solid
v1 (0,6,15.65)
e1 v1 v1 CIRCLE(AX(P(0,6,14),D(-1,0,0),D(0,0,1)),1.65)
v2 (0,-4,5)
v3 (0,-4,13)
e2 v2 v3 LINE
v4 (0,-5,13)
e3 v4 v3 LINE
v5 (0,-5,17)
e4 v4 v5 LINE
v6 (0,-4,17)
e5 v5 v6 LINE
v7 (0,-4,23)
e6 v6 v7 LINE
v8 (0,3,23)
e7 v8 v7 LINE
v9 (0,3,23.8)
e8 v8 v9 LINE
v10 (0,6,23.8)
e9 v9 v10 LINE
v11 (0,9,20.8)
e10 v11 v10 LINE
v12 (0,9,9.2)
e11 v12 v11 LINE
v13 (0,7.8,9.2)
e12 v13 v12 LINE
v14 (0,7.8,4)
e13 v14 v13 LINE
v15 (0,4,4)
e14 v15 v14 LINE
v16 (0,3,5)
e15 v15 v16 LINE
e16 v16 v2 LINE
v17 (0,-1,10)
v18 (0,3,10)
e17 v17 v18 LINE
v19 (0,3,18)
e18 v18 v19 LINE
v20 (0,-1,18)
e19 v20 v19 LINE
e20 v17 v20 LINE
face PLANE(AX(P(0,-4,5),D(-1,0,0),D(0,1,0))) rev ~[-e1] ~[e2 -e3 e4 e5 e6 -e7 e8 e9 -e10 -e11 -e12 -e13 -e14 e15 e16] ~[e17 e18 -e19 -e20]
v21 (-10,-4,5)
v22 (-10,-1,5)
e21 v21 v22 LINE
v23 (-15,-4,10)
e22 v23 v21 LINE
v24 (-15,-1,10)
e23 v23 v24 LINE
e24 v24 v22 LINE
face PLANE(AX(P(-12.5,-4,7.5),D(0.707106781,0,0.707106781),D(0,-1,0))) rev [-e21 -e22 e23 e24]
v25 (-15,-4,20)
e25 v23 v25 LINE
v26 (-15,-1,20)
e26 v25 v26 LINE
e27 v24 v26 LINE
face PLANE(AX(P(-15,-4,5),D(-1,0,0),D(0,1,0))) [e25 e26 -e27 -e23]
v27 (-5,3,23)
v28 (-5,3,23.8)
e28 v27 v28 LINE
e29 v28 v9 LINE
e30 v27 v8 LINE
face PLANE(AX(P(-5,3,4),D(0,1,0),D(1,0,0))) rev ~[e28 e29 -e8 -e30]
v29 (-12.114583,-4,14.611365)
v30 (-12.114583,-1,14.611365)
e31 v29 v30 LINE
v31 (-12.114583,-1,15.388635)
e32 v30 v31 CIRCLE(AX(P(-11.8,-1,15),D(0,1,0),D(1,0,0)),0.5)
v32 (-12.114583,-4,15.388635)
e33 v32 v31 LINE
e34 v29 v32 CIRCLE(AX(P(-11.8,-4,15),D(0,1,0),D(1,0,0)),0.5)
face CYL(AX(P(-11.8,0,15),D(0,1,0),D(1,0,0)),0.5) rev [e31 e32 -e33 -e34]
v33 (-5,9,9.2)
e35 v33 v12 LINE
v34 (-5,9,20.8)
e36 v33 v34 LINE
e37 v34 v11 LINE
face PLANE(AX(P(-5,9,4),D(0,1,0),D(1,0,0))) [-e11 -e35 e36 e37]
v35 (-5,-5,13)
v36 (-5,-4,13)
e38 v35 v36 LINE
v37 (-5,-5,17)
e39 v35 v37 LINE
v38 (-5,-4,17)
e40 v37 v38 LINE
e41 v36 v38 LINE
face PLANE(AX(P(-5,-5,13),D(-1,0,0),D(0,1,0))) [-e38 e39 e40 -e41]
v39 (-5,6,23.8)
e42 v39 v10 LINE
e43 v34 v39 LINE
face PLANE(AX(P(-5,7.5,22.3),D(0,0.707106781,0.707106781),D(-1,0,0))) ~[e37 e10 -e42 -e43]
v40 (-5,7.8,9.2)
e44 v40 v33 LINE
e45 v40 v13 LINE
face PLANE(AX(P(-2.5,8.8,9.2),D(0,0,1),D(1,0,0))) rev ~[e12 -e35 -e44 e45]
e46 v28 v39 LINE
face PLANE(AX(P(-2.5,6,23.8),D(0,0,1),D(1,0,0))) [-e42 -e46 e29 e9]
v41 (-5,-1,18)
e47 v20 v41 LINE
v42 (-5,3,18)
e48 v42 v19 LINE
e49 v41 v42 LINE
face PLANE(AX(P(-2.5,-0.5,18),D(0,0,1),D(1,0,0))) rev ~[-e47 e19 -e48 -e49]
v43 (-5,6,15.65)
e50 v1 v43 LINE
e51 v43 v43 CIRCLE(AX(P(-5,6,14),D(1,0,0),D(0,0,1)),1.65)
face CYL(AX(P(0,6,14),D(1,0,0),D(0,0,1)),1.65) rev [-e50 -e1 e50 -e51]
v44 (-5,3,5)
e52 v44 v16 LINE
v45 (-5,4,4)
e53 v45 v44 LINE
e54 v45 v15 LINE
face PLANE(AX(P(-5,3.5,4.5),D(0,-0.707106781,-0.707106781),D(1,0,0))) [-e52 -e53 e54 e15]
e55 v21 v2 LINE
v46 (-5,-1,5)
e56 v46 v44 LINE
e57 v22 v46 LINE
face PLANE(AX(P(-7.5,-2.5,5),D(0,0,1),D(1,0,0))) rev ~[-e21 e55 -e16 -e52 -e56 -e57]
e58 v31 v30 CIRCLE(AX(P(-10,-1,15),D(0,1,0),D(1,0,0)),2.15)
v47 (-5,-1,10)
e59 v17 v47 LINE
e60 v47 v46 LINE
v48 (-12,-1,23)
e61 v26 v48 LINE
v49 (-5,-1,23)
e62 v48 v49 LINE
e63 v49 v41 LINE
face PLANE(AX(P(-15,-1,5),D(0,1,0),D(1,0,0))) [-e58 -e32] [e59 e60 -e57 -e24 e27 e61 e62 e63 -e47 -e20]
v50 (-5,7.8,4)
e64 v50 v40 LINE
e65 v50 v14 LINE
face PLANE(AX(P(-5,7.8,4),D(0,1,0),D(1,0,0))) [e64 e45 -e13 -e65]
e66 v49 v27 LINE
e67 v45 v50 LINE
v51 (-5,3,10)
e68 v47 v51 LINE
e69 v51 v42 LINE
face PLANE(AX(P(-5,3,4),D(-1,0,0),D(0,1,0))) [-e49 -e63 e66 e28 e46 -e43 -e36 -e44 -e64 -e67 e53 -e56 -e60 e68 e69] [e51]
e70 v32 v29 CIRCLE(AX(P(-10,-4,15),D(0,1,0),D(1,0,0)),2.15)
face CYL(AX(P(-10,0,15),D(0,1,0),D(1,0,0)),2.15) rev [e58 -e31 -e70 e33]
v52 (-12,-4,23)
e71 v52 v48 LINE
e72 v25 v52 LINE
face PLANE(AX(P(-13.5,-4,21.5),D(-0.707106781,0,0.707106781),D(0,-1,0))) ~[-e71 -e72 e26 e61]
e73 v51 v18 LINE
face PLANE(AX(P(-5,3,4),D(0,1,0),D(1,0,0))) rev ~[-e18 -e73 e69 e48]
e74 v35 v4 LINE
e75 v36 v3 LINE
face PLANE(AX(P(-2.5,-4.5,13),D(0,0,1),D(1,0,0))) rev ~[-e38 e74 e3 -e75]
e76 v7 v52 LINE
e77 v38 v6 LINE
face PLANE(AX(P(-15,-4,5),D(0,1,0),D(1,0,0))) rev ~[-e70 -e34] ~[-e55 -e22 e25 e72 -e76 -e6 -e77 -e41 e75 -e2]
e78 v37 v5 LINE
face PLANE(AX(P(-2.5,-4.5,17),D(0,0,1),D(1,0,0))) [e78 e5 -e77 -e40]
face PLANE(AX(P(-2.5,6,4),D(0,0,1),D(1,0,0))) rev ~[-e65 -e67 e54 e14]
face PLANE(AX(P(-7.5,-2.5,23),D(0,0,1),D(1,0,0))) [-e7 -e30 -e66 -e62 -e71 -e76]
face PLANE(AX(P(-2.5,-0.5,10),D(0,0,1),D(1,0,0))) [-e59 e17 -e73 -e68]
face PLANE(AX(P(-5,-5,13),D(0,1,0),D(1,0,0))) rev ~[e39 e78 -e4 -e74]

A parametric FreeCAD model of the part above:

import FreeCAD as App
import Part
import Sketcher

V = App.Vector
Q = App.Units.Quantity


def edges_at(feature, points):
    """Names of the edges that pass closest to the given points."""
    edges = feature.Shape.Edges
    near = lambda p: min(range(len(edges)), key=lambda i: edges[i].distToShape(Part.Vertex(*p))[0])
    return sorted({f"Edge{near(p) + 1}" for p in points})

doc = App.newDocument("Part")
body = doc.addObject("PartDesign::Body", "Body")

# Sketch on XY plane
sketch1 = doc.addObject("Sketcher::SketchObject", "Sketch")
body.addObject(sketch1)
sketch1.AttachmentSupport = (doc.XY_Plane, [""])
sketch1.MapMode = "FlatFace"
sketch1.AttachmentOffset = App.Placement(V(0, 0, 18), App.Rotation())
sketch1.addGeometry(Part.LineSegment(V(-5, 3, 0), V(-5, -4, 0)), False)
sketch1.addGeometry(Part.LineSegment(V(-5, -4, 0), V(0, -4, 0)), False)
sketch1.addGeometry(Part.LineSegment(V(0, -4, 0), V(0, 3, 0)), False)
sketch1.addGeometry(Part.LineSegment(V(0, 3, 0), V(-5, 3, 0)), False)
sketch1.addConstraint(Sketcher.Constraint("Coincident", 0, 2, 1, 1))
sketch1.addConstraint(Sketcher.Constraint("Coincident", 1, 2, 2, 1))
sketch1.addConstraint(Sketcher.Constraint("Coincident", 2, 2, 3, 1))
sketch1.addConstraint(Sketcher.Constraint("Coincident", 3, 2, 0, 1))
sketch1.addConstraint(Sketcher.Constraint("Vertical", 0))
sketch1.addConstraint(Sketcher.Constraint("Horizontal", 1))
sketch1.addConstraint(Sketcher.Constraint("Vertical", 2))
sketch1.addConstraint(Sketcher.Constraint("Horizontal", 3))
sketch1.addConstraint(Sketcher.Constraint("PointOnObject", 1, 2, -2))
sketch1.addConstraint(Sketcher.Constraint("DistanceX", 1, 1, 1, 2, Q("5 mm")))
sketch1.addConstraint(Sketcher.Constraint("DistanceY", 0, 2, 0, 1, Q("7 mm")))
sketch1.addConstraint(Sketcher.Constraint("DistanceY", 0, 2, -1, 1, Q("4 mm")))
pad1 = doc.addObject("PartDesign::Pad", "Pad")
body.addObject(pad1)
pad1.Profile = sketch1
pad1.Length = 5
body2 = doc.addObject("PartDesign::Body", "Body001")

# Sketch on XY plane
sketch2 = doc.addObject("Sketcher::SketchObject", "Sketch001")
body2.addObject(sketch2)
sketch2.AttachmentSupport = (doc.getObject("XY_Plane001"), [""])
sketch2.MapMode = "FlatFace"
sketch2.AttachmentOffset = App.Placement(V(0, 0, 5), App.Rotation())
sketch2.addGeometry(Part.LineSegment(V(-5, 3, 0), V(-5, -4, 0)), False)
sketch2.addGeometry(Part.LineSegment(V(-5, -4, 0), V(0, -4, 0)), False)
sketch2.addGeometry(Part.LineSegment(V(0, -4, 0), V(0, 3, 0)), False)
sketch2.addGeometry(Part.LineSegment(V(0, 3, 0), V(-5, 3, 0)), False)
sketch2.addConstraint(Sketcher.Constraint("Coincident", 0, 2, 1, 1))
sketch2.addConstraint(Sketcher.Constraint("Coincident", 1, 2, 2, 1))
sketch2.addConstraint(Sketcher.Constraint("Coincident", 2, 2, 3, 1))
sketch2.addConstraint(Sketcher.Constraint("Coincident", 3, 2, 0, 1))
sketch2.addConstraint(Sketcher.Constraint("Vertical", 0))
sketch2.addConstraint(Sketcher.Constraint("Horizontal", 1))
sketch2.addConstraint(Sketcher.Constraint("Vertical", 2))
sketch2.addConstraint(Sketcher.Constraint("Horizontal", 3))
sketch2.addConstraint(Sketcher.Constraint("PointOnObject", 1, 2, -2))
sketch2.addConstraint(Sketcher.Constraint("DistanceX", 1, 1, 1, 2, Q("5 mm")))
sketch2.addConstraint(Sketcher.Constraint("DistanceY", 0, 2, 0, 1, Q("7 mm")))
sketch2.addConstraint(Sketcher.Constraint("DistanceY", 0, 2, -1, 1, Q("4 mm")))
pad2 = doc.addObject("PartDesign::Pad", "Pad001")
body2.addObject(pad2)
pad2.Profile = sketch2
pad2.Length = 5
body3 = doc.addObject("PartDesign::Body", "Body002")

# Sketch on YZ plane
sketch3 = doc.addObject("Sketcher::SketchObject", "Sketch002")
body3.addObject(sketch3)
sketch3.AttachmentSupport = (doc.getObject("YZ_Plane002"), [""])
sketch3.MapMode = "FlatFace"
sketch3.addGeometry(Part.Circle(V(6, 15, 0), V(0, 0, 1), 1.6), False)
sketch3.addConstraint(Sketcher.Constraint("Diameter", 0, Q("3.3 mm")))
sketch3.addConstraint(Sketcher.Constraint("DistanceX", -1, 1, 0, 3, Q("6 mm")))
sketch3.addConstraint(Sketcher.Constraint("DistanceY", -1, 1, 0, 3, Q("15 mm")))
pad3 = doc.addObject("PartDesign::Pad", "Pad002")
body3.addObject(pad3)
pad3.Profile = sketch3
pad3.Length = 10
pad3.Reversed = True
body4 = doc.addObject("PartDesign::Body", "Body003")

# Sketch on XY plane
sketch4 = doc.addObject("Sketcher::SketchObject", "Sketch003")
body4.addObject(sketch4)
sketch4.AttachmentSupport = (doc.getObject("XY_Plane003"), [""])
sketch4.MapMode = "FlatFace"
sketch4.AttachmentOffset = App.Placement(V(0, 0, 5), App.Rotation())
sketch4.addGeometry(Part.LineSegment(V(-5, 9.8, 0), V(-5, 7.8, 0)), False)
sketch4.addGeometry(Part.LineSegment(V(-5, 7.8, 0), V(0, 7.8, 0)), False)
sketch4.addGeometry(Part.LineSegment(V(0, 7.8, 0), V(0, 9.8, 0)), False)
sketch4.addGeometry(Part.LineSegment(V(0, 9.8, 0), V(-5, 9.8, 0)), False)
sketch4.addConstraint(Sketcher.Constraint("Coincident", 0, 2, 1, 1))
sketch4.addConstraint(Sketcher.Constraint("Coincident", 1, 2, 2, 1))
sketch4.addConstraint(Sketcher.Constraint("Coincident", 2, 2, 3, 1))
sketch4.addConstraint(Sketcher.Constraint("Coincident", 3, 2, 0, 1))
sketch4.addConstraint(Sketcher.Constraint("Vertical", 0))
sketch4.addConstraint(Sketcher.Constraint("Horizontal", 1))
sketch4.addConstraint(Sketcher.Constraint("Vertical", 2))
sketch4.addConstraint(Sketcher.Constraint("Horizontal", 3))
sketch4.addConstraint(Sketcher.Constraint("PointOnObject", 1, 2, -2))
sketch4.addConstraint(Sketcher.Constraint("DistanceX", 1, 1, 1, 2, Q("5 mm")))
sketch4.addConstraint(Sketcher.Constraint("DistanceY", 0, 2, 0, 1, Q("2 mm")))
sketch4.addConstraint(Sketcher.Constraint("DistanceY", -1, 1, 0, 2, Q("7.8 mm")))
pad4 = doc.addObject("PartDesign::Pad", "Pad003")
body4.addObject(pad4)
pad4.Profile = sketch4
pad4.Length = 5.2
body5 = doc.addObject("PartDesign::Body", "Body004")

# Sketch on XY plane
sketch5 = doc.addObject("Sketcher::SketchObject", "Sketch004")
body5.addObject(sketch5)
sketch5.AttachmentSupport = (doc.getObject("XY_Plane004"), [""])
sketch5.MapMode = "FlatFace"
sketch5.AttachmentOffset = App.Placement(V(0, 0, 5), App.Rotation())
sketch5.addGeometry(Part.LineSegment(V(-5, 9, 0), V(-5, 3, 0)), False)
sketch5.addGeometry(Part.LineSegment(V(-5, 3, 0), V(0, 3, 0)), False)
sketch5.addGeometry(Part.LineSegment(V(0, 3, 0), V(0, 9, 0)), False)
sketch5.addGeometry(Part.LineSegment(V(0, 9, 0), V(-5, 9, 0)), False)
sketch5.addConstraint(Sketcher.Constraint("Coincident", 0, 2, 1, 1))
sketch5.addConstraint(Sketcher.Constraint("Coincident", 1, 2, 2, 1))
sketch5.addConstraint(Sketcher.Constraint("Coincident", 2, 2, 3, 1))
sketch5.addConstraint(Sketcher.Constraint("Coincident", 3, 2, 0, 1))
sketch5.addConstraint(Sketcher.Constraint("Vertical", 0))
sketch5.addConstraint(Sketcher.Constraint("Horizontal", 1))
sketch5.addConstraint(Sketcher.Constraint("Vertical", 2))
sketch5.addConstraint(Sketcher.Constraint("Horizontal", 3))
sketch5.addConstraint(Sketcher.Constraint("PointOnObject", 1, 2, -2))
sketch5.addConstraint(Sketcher.Constraint("DistanceX", 1, 1, 1, 2, Q("5 mm")))
sketch5.addConstraint(Sketcher.Constraint("DistanceY", 0, 2, 0, 1, Q("6 mm")))
sketch5.addConstraint(Sketcher.Constraint("DistanceY", -1, 1, 0, 2, Q("3 mm")))
pad5 = doc.addObject("PartDesign::Pad", "Pad004")
body5.addObject(pad5)
pad5.Profile = sketch5
pad5.Length = 19.8
doc.recompute()

chamfer = doc.addObject("PartDesign::Chamfer", "Chamfer")
body5.addObject(chamfer)
chamfer.Base = (pad5, edges_at(pad5, [(-2.5, 9, 24.8)]))
chamfer.Size = 3
doc.recompute()

chamfer2 = doc.addObject("PartDesign::Chamfer", "Chamfer001")
body5.addObject(chamfer2)
chamfer2.Base = (chamfer, edges_at(chamfer, [(-2.5, 3, 5)]))
chamfer2.Size = 1
doc.recompute()

boolean = doc.addObject("PartDesign::Boolean", "Boolean")
body5.addObject(boolean)
boolean.Type = "Cut"
boolean.addObjects([body4])
doc.recompute()

boolean2 = doc.addObject("PartDesign::Boolean", "Boolean001")
body5.addObject(boolean2)
boolean2.Type = "Cut"
boolean2.addObjects([body3])
body6 = doc.addObject("PartDesign::Body", "Body005")
doc.recompute()

body5.Placement = App.Placement(V(0, 0, -1), App.Rotation(V(0, 0, 1), 0))
boolean3 = doc.addObject("PartDesign::Boolean", "Boolean002")
body6.addObject(boolean3)
boolean3.Type = "Fuse"
boolean3.addObjects([body5])
body7 = doc.addObject("PartDesign::Body", "Body006")

# Sketch on XZ plane
sketch6 = doc.addObject("Sketcher::SketchObject", "Sketch005")
body7.addObject(sketch6)
sketch6.AttachmentSupport = (doc.getObject("XZ_Plane006"), [""])
sketch6.MapMode = "FlatFace"
sketch6.addGeometry(Part.Circle(V(-10, 12, 0), V(0, 0, 1), 2.1), False)
sketch6.addConstraint(Sketcher.Constraint("Diameter", 0, Q("4.3 mm")))
sketch6.addConstraint(Sketcher.Constraint("DistanceX", 0, 3, -1, 1, Q("10 mm")))
sketch6.addConstraint(Sketcher.Constraint("DistanceY", -1, 1, 0, 3, Q("12 mm")))
pad6 = doc.addObject("PartDesign::Pad", "Pad005")
body7.addObject(pad6)
pad6.Profile = sketch6
pad6.Length = 10
body8 = doc.addObject("PartDesign::Body", "Body007")

# Sketch on XZ plane
sketch7 = doc.addObject("Sketcher::SketchObject", "Sketch006")
body8.addObject(sketch7)
sketch7.AttachmentSupport = (doc.getObject("XZ_Plane007"), [""])
sketch7.MapMode = "FlatFace"
sketch7.addGeometry(Part.Circle(V(-11.8, 12, 0), V(0, 0, 1), 0.5), False)
sketch7.addConstraint(Sketcher.Constraint("Diameter", 0, Q("1 mm")))
sketch7.addConstraint(Sketcher.Constraint("DistanceY", -1, 1, 0, 3, Q("12 mm")))
sketch7.addConstraint(Sketcher.Constraint("DistanceX", 0, 3, -1, 1, Q("11.8 mm")))
pad7 = doc.addObject("PartDesign::Pad", "Pad006")
body8.addObject(pad7)
pad7.Profile = sketch7
pad7.Length = 10
doc.recompute()

boolean4 = doc.addObject("PartDesign::Boolean", "Boolean003")
body8.addObject(boolean4)
boolean4.Type = "Fuse"
boolean4.addObjects([body7])
body9 = doc.addObject("PartDesign::Body", "Body008")
doc.recompute()

body8.Placement = App.Placement(V(0, 0, 3), App.Rotation(V(0, 0, 1), 0))
boolean5 = doc.addObject("PartDesign::Boolean", "Boolean004")
body9.addObject(boolean5)
boolean5.Type = "Fuse"
boolean5.addObjects([body8])
body10 = doc.addObject("PartDesign::Body", "Body009")

# Sketch on XY plane
sketch8 = doc.addObject("Sketcher::SketchObject", "Sketch007")
body10.addObject(sketch8)
sketch8.AttachmentSupport = (doc.getObject("XY_Plane009"), [""])
sketch8.MapMode = "FlatFace"
sketch8.AttachmentOffset = App.Placement(V(0, 0, 5), App.Rotation())
sketch8.addGeometry(Part.LineSegment(V(-15, -1, 0), V(-15, -4, 0)), False)
sketch8.addGeometry(Part.LineSegment(V(-15, -4, 0), V(0, -4, 0)), False)
sketch8.addGeometry(Part.LineSegment(V(0, -4, 0), V(0, -1, 0)), False)
sketch8.addGeometry(Part.LineSegment(V(0, -1, 0), V(-15, -1, 0)), False)
sketch8.addConstraint(Sketcher.Constraint("Coincident", 0, 2, 1, 1))
sketch8.addConstraint(Sketcher.Constraint("Coincident", 1, 2, 2, 1))
sketch8.addConstraint(Sketcher.Constraint("Coincident", 2, 2, 3, 1))
sketch8.addConstraint(Sketcher.Constraint("Coincident", 3, 2, 0, 1))
sketch8.addConstraint(Sketcher.Constraint("Vertical", 0))
sketch8.addConstraint(Sketcher.Constraint("Horizontal", 1))
sketch8.addConstraint(Sketcher.Constraint("Vertical", 2))
sketch8.addConstraint(Sketcher.Constraint("Horizontal", 3))
sketch8.addConstraint(Sketcher.Constraint("PointOnObject", 1, 2, -2))
sketch8.addConstraint(Sketcher.Constraint("DistanceX", 1, 1, 1, 2, Q("15 mm")))
sketch8.addConstraint(Sketcher.Constraint("DistanceY", 0, 2, 0, 1, Q("3 mm")))
sketch8.addConstraint(Sketcher.Constraint("DistanceY", 0, 2, -1, 1, Q("4 mm")))
pad8 = doc.addObject("PartDesign::Pad", "Pad007")
body10.addObject(pad8)
pad8.Profile = sketch8
pad8.Length = 18
doc.recompute()

boolean6 = doc.addObject("PartDesign::Boolean", "Boolean005")
body10.addObject(boolean6)
boolean6.Type = "Cut"
boolean6.addObjects([body9])
doc.recompute()

chamfer3 = doc.addObject("PartDesign::Chamfer", "Chamfer002")
body10.addObject(chamfer3)
chamfer3.Base = (boolean6, edges_at(boolean6, [(-15, -2.5, 23)]))
chamfer3.Size = 3
doc.recompute()

chamfer4 = doc.addObject("PartDesign::Chamfer", "Chamfer003")
body10.addObject(chamfer4)
chamfer4.Base = (chamfer3, edges_at(chamfer3, [(-15, -2.5, 5)]))
chamfer4.Size = 5
body11 = doc.addObject("PartDesign::Body", "Body010")
body11.AllowCompound = True

# Sketch on XY plane
sketch9 = doc.addObject("Sketcher::SketchObject", "Sketch008")
body11.addObject(sketch9)
sketch9.AttachmentSupport = (doc.getObject("XY_Plane010"), [""])
sketch9.MapMode = "FlatFace"
sketch9.AttachmentOffset = App.Placement(V(0, 0, 13), App.Rotation())
sketch9.addGeometry(Part.LineSegment(V(-5, -4, 0), V(-5, -5, 0)), False)
sketch9.addGeometry(Part.LineSegment(V(-5, -5, 0), V(0, -5, 0)), False)
sketch9.addGeometry(Part.LineSegment(V(0, -5, 0), V(0, -4, 0)), False)
sketch9.addGeometry(Part.LineSegment(V(0, -4, 0), V(-5, -4, 0)), False)
sketch9.addConstraint(Sketcher.Constraint("Coincident", 0, 2, 1, 1))
sketch9.addConstraint(Sketcher.Constraint("Coincident", 1, 2, 2, 1))
sketch9.addConstraint(Sketcher.Constraint("Coincident", 2, 2, 3, 1))
sketch9.addConstraint(Sketcher.Constraint("Coincident", 3, 2, 0, 1))
sketch9.addConstraint(Sketcher.Constraint("Vertical", 0))
sketch9.addConstraint(Sketcher.Constraint("Horizontal", 1))
sketch9.addConstraint(Sketcher.Constraint("Vertical", 2))
sketch9.addConstraint(Sketcher.Constraint("Horizontal", 3))
sketch9.addConstraint(Sketcher.Constraint("PointOnObject", 1, 2, -2))
sketch9.addConstraint(Sketcher.Constraint("DistanceX", 1, 1, 1, 2, Q("5 mm")))
sketch9.addConstraint(Sketcher.Constraint("DistanceY", 0, 2, 0, 1, Q("1 mm")))
sketch9.addConstraint(Sketcher.Constraint("DistanceY", 0, 2, -1, 1, Q("5 mm")))
pad9 = doc.addObject("PartDesign::Pad", "Pad008")
body11.addObject(pad9)
pad9.Profile = sketch9
pad9.Length = 4
doc.recompute()

boolean7 = doc.addObject("PartDesign::Boolean", "Boolean006")
body11.addObject(boolean7)
boolean7.Type = "Fuse"
boolean7.addObjects([body])
doc.recompute()

boolean8 = doc.addObject("PartDesign::Boolean", "Boolean007")
body11.addObject(boolean8)
boolean8.Type = "Fuse"
boolean8.addObjects([body2])
doc.recompute()

boolean9 = doc.addObject("PartDesign::Boolean", "Boolean008")
body11.addObject(boolean9)
boolean9.Type = "Fuse"
boolean9.addObjects([body6])
doc.recompute()

boolean10 = doc.addObject("PartDesign::Boolean", "Boolean009")
body11.addObject(boolean10)
boolean10.Type = "Fuse"
boolean10.addObjects([body10])

doc.recompute()
